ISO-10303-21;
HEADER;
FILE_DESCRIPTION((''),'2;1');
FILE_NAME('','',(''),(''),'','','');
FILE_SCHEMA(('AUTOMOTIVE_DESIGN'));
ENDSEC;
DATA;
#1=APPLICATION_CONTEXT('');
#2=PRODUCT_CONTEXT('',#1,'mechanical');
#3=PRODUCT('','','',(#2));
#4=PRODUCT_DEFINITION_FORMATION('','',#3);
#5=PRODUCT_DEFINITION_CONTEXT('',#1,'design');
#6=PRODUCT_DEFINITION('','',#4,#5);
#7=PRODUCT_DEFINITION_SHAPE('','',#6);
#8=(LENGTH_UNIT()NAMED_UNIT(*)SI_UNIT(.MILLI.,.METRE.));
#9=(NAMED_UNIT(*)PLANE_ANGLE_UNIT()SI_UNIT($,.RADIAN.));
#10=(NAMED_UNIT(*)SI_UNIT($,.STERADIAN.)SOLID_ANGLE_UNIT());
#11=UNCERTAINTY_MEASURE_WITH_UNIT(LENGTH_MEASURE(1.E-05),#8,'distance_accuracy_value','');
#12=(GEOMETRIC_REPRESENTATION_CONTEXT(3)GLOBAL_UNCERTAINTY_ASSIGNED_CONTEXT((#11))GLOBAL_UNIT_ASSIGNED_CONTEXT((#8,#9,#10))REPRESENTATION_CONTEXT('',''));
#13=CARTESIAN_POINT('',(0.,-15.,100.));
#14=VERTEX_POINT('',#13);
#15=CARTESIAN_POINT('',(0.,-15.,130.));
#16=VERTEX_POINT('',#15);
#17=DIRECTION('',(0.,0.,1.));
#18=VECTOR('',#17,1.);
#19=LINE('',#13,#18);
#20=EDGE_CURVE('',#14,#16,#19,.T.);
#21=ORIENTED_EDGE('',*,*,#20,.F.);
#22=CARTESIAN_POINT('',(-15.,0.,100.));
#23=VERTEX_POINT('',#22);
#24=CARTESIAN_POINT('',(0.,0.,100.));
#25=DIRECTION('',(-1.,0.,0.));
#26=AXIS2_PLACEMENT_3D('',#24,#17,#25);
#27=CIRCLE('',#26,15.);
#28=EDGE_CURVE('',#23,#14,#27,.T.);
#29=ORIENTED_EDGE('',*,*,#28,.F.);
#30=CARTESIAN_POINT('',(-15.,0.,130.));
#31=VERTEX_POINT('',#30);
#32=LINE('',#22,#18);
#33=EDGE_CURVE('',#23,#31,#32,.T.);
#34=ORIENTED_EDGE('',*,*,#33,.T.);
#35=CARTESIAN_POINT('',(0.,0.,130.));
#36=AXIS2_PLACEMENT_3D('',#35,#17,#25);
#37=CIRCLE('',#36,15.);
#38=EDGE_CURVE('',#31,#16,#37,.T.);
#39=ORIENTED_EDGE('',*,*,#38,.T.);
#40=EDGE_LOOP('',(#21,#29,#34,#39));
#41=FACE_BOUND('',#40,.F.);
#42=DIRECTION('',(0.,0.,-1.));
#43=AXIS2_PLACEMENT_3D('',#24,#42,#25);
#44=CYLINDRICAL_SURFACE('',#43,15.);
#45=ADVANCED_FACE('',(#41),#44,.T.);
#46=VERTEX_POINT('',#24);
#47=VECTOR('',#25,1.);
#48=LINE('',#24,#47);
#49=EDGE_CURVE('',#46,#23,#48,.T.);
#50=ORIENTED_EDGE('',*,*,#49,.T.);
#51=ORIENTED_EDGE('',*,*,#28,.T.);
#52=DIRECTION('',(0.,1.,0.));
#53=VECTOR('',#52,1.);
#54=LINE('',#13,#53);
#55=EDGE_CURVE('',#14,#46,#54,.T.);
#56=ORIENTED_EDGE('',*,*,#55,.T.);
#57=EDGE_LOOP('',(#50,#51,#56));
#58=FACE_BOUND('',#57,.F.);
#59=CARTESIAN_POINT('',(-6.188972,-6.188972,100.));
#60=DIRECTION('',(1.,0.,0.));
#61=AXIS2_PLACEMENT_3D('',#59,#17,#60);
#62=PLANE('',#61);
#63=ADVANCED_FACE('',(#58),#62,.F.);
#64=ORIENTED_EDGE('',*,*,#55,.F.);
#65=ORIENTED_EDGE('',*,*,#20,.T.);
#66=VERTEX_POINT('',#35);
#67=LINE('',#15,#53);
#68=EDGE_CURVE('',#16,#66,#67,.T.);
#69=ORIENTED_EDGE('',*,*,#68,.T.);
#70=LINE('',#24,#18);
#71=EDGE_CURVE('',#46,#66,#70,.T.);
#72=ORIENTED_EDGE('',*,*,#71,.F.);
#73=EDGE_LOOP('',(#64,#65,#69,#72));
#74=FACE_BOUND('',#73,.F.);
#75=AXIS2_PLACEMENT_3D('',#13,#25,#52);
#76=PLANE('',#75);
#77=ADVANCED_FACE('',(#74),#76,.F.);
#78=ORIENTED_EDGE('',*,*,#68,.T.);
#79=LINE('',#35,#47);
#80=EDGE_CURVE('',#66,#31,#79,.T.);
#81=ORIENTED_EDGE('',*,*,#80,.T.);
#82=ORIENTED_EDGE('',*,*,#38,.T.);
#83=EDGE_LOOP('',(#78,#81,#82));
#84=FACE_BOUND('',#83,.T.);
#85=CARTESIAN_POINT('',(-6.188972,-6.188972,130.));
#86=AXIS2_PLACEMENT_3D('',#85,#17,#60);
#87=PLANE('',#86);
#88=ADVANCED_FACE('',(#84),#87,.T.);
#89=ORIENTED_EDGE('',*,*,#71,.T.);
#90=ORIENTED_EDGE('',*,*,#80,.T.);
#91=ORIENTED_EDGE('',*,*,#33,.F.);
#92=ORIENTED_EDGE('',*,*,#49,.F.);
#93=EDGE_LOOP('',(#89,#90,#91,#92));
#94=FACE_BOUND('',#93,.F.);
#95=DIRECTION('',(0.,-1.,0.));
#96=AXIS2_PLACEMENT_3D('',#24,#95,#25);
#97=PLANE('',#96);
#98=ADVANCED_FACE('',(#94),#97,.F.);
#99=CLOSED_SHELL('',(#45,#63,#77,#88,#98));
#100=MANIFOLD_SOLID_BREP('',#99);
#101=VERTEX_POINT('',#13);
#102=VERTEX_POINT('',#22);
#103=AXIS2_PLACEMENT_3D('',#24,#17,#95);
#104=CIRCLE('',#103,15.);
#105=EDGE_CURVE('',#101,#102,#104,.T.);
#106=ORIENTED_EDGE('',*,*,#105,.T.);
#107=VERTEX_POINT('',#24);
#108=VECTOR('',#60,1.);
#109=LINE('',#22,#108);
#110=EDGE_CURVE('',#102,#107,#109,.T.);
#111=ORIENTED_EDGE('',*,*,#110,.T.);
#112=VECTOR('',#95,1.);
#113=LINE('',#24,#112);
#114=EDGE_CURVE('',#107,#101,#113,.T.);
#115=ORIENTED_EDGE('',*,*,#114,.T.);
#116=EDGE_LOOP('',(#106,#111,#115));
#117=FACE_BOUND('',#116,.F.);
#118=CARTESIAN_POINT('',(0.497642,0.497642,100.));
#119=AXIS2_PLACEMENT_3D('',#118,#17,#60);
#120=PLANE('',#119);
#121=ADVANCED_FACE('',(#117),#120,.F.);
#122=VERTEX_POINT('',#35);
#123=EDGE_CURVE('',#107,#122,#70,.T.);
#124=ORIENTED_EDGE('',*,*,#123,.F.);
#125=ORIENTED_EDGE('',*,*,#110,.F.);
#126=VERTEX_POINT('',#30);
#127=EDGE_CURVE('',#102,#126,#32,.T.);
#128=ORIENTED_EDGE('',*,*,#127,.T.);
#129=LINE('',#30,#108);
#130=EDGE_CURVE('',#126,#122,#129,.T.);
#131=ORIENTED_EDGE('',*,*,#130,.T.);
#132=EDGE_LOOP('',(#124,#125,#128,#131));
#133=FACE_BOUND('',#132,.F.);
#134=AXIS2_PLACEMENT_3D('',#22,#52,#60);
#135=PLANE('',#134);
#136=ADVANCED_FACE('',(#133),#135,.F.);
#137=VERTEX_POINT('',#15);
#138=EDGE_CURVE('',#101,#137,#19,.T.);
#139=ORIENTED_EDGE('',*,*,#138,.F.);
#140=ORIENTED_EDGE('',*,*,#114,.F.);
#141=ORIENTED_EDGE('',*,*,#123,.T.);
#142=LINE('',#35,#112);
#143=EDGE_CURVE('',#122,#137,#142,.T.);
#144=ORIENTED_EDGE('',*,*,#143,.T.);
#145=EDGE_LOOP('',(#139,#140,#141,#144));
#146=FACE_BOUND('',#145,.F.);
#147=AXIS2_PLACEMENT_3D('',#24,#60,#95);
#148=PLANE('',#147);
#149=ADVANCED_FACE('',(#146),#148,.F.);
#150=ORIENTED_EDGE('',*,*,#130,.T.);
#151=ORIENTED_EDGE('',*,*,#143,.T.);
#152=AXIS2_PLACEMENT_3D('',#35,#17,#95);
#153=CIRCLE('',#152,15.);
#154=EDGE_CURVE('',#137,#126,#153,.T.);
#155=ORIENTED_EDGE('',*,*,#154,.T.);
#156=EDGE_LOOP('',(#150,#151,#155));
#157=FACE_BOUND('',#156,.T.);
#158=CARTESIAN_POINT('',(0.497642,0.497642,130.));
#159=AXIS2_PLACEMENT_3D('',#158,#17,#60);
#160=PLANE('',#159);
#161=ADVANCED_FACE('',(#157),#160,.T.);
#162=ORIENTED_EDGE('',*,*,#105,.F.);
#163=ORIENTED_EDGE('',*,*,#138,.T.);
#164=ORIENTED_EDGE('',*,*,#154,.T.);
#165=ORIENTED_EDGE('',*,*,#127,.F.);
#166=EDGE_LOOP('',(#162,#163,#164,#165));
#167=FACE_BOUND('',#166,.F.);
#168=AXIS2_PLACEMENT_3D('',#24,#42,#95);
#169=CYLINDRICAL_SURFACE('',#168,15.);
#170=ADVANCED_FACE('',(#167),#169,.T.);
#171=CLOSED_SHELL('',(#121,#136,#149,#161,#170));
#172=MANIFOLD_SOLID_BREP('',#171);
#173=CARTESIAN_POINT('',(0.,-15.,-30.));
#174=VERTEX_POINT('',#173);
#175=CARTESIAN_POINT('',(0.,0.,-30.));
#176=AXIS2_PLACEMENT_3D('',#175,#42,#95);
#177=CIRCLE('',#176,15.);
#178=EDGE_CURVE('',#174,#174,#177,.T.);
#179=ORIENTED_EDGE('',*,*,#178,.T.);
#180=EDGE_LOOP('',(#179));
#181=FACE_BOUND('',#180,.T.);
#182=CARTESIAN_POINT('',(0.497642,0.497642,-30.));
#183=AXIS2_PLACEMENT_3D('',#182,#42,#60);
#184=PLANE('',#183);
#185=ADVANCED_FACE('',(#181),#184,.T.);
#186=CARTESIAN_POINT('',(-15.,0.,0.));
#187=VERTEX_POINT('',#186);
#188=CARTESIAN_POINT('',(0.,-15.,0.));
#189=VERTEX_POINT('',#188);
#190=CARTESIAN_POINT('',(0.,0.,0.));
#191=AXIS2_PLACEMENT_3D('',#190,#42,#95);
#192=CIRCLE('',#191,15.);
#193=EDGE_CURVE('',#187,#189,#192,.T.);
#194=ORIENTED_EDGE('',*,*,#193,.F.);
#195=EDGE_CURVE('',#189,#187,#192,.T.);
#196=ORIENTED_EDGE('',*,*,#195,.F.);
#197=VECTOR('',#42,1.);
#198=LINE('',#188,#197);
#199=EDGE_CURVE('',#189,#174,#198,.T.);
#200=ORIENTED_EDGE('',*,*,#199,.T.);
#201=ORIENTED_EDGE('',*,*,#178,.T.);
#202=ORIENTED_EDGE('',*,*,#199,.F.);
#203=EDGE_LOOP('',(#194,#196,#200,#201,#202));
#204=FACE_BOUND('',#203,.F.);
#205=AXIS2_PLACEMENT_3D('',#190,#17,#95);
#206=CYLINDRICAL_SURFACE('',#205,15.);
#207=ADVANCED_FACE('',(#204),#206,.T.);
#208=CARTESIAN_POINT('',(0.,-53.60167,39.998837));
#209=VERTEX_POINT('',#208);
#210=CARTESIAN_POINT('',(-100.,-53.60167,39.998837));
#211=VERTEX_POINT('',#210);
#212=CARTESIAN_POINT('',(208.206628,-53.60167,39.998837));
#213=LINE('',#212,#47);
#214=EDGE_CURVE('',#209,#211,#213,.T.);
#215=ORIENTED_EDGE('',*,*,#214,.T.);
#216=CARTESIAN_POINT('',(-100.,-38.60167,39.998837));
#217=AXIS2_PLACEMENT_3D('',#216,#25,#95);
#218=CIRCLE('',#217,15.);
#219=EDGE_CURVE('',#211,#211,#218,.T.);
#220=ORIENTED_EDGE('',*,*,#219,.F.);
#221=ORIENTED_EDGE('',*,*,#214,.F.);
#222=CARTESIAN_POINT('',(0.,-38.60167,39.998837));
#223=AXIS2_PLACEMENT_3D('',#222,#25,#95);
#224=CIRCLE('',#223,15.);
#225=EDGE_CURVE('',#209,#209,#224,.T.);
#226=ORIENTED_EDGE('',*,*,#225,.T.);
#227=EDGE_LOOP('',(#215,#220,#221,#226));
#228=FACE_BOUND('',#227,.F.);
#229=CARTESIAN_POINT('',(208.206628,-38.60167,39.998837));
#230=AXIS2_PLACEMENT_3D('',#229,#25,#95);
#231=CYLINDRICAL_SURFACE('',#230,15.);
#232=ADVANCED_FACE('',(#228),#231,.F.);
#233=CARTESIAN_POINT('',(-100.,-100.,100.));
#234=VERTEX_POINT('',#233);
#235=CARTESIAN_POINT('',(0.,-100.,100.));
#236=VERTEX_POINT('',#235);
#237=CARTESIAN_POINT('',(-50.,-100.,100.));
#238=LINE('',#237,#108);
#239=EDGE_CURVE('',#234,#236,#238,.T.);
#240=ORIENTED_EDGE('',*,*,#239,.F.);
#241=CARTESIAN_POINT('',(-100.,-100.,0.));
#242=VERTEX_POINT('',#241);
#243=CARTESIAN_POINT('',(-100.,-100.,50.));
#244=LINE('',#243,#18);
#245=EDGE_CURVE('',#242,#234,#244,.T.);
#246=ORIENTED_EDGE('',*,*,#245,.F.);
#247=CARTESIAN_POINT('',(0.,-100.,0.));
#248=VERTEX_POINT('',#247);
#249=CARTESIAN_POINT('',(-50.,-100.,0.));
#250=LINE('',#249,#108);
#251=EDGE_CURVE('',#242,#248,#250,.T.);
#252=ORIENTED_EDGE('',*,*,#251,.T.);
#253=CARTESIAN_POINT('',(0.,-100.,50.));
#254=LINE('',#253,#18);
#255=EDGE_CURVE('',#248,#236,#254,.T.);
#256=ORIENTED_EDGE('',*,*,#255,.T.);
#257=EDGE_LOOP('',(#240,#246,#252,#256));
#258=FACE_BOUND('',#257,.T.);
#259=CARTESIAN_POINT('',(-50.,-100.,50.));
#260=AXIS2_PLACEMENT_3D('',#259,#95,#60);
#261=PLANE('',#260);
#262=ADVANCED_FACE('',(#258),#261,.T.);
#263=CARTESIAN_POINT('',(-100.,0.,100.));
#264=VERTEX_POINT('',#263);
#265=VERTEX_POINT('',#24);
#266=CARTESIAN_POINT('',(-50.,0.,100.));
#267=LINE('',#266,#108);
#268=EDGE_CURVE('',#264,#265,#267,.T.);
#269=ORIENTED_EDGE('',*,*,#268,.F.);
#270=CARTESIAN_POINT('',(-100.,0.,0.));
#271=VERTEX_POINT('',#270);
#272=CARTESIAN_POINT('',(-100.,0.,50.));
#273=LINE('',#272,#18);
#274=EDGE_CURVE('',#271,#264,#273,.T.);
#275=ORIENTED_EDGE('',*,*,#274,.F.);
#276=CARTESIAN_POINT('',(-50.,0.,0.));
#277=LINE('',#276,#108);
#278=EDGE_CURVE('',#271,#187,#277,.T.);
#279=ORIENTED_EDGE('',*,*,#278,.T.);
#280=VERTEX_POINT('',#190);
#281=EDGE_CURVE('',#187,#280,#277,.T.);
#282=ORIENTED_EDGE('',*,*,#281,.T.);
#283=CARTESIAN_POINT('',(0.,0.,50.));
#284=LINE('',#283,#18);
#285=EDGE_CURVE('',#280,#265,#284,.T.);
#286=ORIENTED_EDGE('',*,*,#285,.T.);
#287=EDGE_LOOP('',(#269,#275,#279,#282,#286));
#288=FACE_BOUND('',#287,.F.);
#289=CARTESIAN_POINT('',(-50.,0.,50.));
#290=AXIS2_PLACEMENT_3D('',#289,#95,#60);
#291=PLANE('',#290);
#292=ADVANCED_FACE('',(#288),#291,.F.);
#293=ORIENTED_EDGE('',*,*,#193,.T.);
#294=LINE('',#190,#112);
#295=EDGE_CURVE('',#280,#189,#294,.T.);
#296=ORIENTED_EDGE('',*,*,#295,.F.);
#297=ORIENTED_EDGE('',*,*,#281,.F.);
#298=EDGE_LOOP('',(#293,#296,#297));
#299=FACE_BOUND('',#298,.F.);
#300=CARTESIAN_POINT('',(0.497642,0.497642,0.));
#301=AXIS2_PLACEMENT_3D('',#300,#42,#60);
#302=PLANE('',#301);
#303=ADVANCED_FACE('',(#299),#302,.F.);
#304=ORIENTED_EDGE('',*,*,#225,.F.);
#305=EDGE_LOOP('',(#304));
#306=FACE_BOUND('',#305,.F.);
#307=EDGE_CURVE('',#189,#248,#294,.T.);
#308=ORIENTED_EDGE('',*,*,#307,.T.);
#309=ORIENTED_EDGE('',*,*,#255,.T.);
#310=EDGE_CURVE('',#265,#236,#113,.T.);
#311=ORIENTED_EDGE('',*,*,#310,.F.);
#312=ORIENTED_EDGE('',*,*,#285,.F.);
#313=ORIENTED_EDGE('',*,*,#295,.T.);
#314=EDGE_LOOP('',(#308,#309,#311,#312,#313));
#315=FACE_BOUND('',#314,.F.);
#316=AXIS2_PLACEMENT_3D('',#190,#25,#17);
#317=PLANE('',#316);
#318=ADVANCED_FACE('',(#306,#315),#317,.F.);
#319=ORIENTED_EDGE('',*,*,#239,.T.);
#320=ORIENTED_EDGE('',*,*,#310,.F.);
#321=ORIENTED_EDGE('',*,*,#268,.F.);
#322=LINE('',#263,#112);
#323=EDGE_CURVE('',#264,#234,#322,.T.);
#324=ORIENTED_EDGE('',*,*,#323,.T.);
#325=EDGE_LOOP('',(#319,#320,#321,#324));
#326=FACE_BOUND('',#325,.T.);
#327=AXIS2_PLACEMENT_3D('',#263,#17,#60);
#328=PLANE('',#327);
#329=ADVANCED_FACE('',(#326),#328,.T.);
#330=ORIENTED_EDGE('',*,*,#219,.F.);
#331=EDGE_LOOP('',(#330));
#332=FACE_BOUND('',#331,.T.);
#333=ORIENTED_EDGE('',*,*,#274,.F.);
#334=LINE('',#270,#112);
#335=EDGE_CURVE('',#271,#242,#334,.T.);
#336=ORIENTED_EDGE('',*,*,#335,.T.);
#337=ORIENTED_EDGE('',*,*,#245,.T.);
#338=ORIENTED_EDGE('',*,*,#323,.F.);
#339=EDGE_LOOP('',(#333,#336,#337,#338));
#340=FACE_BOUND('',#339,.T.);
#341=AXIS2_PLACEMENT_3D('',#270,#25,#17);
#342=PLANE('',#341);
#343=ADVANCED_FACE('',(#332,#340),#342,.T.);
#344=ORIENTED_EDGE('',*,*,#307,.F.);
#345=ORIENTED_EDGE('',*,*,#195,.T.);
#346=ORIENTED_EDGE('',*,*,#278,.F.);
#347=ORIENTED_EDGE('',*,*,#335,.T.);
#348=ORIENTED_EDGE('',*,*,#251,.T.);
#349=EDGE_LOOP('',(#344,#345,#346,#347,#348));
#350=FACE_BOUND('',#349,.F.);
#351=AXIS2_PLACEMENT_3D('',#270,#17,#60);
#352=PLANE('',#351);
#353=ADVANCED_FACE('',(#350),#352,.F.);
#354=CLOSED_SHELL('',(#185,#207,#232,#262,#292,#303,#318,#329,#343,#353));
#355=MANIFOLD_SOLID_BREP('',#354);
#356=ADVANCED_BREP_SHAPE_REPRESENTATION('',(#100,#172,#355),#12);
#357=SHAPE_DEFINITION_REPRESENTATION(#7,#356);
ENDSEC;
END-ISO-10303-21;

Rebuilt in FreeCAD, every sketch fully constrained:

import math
import FreeCAD as App
import Part
import Sketcher
from FreeCAD import Vector
Q = App.Units.Quantity


def add_polygon(sketch, points):
    """Adds a closed chain of lines whose ends are joined by coincident constraints."""
    first, n = sketch.GeometryCount, len(points)
    for a, b in zip(points, points[1:] + points[:1]):
        sketch.addGeometry(Part.LineSegment(App.Vector(*a, 0), App.Vector(*b, 0)), False)
    for i in range(n):
        sketch.addConstraint(Sketcher.Constraint("Coincident", first + i, 2, first + (i + 1) % n, 1))

doc = App.newDocument("Part")
params = doc.addObject("Spreadsheet::Sheet", "Params")
for row, (alias, value) in enumerate([
    ("sketch1_width", "100 mm"),
    ("pad1_length", "100 mm"),
    ("sketch2_diameter", "30 mm"),
    ("pad2_length", "30 mm"),
    ("sketch3_diameter", "30 mm"),
    ("hole_diameter", "30 mm"),
    ("sketch4_radius", "15 mm"),
    ("pad3_length", "30 mm"),
    ("sketch5_radius", "15 mm"),
    ("pad4_length", "30 mm"),
], start=1):
    params.set(f"A{row}", alias)
    params.set(f"B{row}", "=" + value)
    params.setAlias(f"B{row}", alias)

body = doc.addObject("PartDesign::Body", "Body")

sketch1 = body.newObject("Sketcher::SketchObject", "Sketch")
sketch1.AttachmentSupport = (doc.getObject("XZ_Plane"), [""])
sketch1.MapMode = "FlatFace"
add_polygon(sketch1, [(-100, 100), (-100, 0), (0, 0), (0, 100)])
sketch1.addConstraint([
    Sketcher.Constraint("Vertical", 0),
    Sketcher.Constraint("Horizontal", 1),
    Sketcher.Constraint("Vertical", 2),
    Sketcher.Constraint("Horizontal", 3),
    Sketcher.Constraint("Coincident", 1, 2, -1, 1),
    Sketcher.Constraint("Equal", 3, 0),
    Sketcher.Constraint("DistanceX", 1, 1, 1, 2, Q("100 mm")),
])
sketch1.setExpression("Constraints[10]", "Params.sketch1_width")
pad1 = body.newObject("PartDesign::Pad", "Pad")
pad1.Profile = sketch1
pad1.setExpression("Length", "Params.pad1_length")

sketch2 = body.newObject("Sketcher::SketchObject", "Sketch001")
sketch2.AttachmentSupport = (doc.getObject("XY_Plane"), [""])
sketch2.MapMode = "FlatFace"
sketch2.addGeometry(Part.Circle(Vector(0, 0, 0), Vector(0, 0, 1), 15), False)
sketch2.addConstraint([
    Sketcher.Constraint("Coincident", 0, 3, -1, 1),
    Sketcher.Constraint("Diameter", 0, Q("30 mm")),
])
sketch2.setExpression("Constraints[1]", "Params.sketch2_diameter")
pad2 = body.newObject("PartDesign::Pad", "Pad001")
pad2.Profile = sketch2
pad2.setExpression("Length", "Params.pad2_length")
pad2.Reversed = True

sketch3 = body.newObject("Sketcher::SketchObject", "Sketch002")
sketch3.AttachmentSupport = (doc.getObject("YZ_Plane"), [""])
sketch3.MapMode = "FlatFace"
sketch3.addGeometry(Part.Circle(Vector(-39, 40, 0), Vector(0, 0, 1), 15), False)
sketch3.addConstraint([
    Sketcher.Constraint("Diameter", 0, Q("30 mm")),
    Sketcher.Constraint("DistanceX", 0, 3, -1, 1, Q("38.60167 mm")),
    Sketcher.Constraint("DistanceY", -1, 1, 0, 3, Q("39.998837 mm")),
])
sketch3.setExpression("Constraints[0]", "Params.sketch3_diameter")
doc.recompute()
hole = body.newObject("PartDesign::Hole", "Hole")
hole.Profile = sketch3
hole.ThreadType = "None"
hole.setExpression("Diameter", "Params.hole_diameter")
hole.DepthType = "ThroughAll"
body2 = doc.addObject("PartDesign::Body", "Body001")

sketch4 = body2.newObject("Sketcher::SketchObject", "Sketch003")
sketch4.AttachmentSupport = (doc.getObject("XY_Plane001"), [""])
sketch4.MapMode = "FlatFace"
sketch4.AttachmentOffset = App.Placement(Vector(0, 0, 100), App.Rotation())
sketch4.addGeometry([
    Part.ArcOfCircle(Part.Circle(Vector(0, 0, 0), Vector(0, 0, 1), 15), math.radians(-90), math.radians(180)),
    Part.LineSegment(Vector(-15, 0, 0), Vector(0, 0, 0)),
    Part.LineSegment(Vector(0, 0, 0), Vector(0, -15, 0)),
], False)
sketch4.addConstraint([
    Sketcher.Constraint("Coincident", 0, 2, 1, 1),
    Sketcher.Constraint("Coincident", 1, 2, 2, 1),
    Sketcher.Constraint("Coincident", 2, 2, 0, 1),
    Sketcher.Constraint("Horizontal", 1),
    Sketcher.Constraint("Vertical", 2),
    Sketcher.Constraint("Coincident", 0, 3, -1, 1),
    Sketcher.Constraint("Coincident", 1, 2, -1, 1),
    Sketcher.Constraint("Radius", 0, Q("15 mm")),
])
sketch4.setExpression("Constraints[7]", "Params.sketch4_radius")
pad3 = body2.newObject("PartDesign::Pad", "Pad002")
pad3.Profile = sketch4
pad3.setExpression("Length", "Params.pad3_length")
body3 = doc.addObject("PartDesign::Body", "Body002")

sketch5 = body3.newObject("Sketcher::SketchObject", "Sketch004")
sketch5.AttachmentSupport = (doc.getObject("XY_Plane002"), [""])
sketch5.MapMode = "FlatFace"
sketch5.AttachmentOffset = App.Placement(Vector(0, 0, 100), App.Rotation())
sketch5.addGeometry([
    Part.LineSegment(Vector(0, 0, 0), Vector(-15, 0, 0)),
    Part.ArcOfCircle(Part.Circle(Vector(0, 0, 0), Vector(0, 0, 1), 15), math.radians(180), math.radians(270)),
    Part.LineSegment(Vector(0, -15, 0), Vector(0, 0, 0)),
], False)
sketch5.addConstraint([
    Sketcher.Constraint("Coincident", 0, 2, 1, 1),
    Sketcher.Constraint("Coincident", 1, 2, 2, 1),
    Sketcher.Constraint("Coincident", 2, 2, 0, 1),
    Sketcher.Constraint("Horizontal", 0),
    Sketcher.Constraint("Vertical", 2),
    Sketcher.Constraint("Coincident", 1, 3, -1, 1),
    Sketcher.Constraint("Coincident", 2, 2, -1, 1),
    Sketcher.Constraint("Radius", 1, Q("15 mm")),
])
sketch5.setExpression("Constraints[7]", "Params.sketch5_radius")
pad4 = body3.newObject("PartDesign::Pad", "Pad003")
pad4.Profile = sketch5
pad4.setExpression("Length", "Params.pad4_length")

doc.recompute()
